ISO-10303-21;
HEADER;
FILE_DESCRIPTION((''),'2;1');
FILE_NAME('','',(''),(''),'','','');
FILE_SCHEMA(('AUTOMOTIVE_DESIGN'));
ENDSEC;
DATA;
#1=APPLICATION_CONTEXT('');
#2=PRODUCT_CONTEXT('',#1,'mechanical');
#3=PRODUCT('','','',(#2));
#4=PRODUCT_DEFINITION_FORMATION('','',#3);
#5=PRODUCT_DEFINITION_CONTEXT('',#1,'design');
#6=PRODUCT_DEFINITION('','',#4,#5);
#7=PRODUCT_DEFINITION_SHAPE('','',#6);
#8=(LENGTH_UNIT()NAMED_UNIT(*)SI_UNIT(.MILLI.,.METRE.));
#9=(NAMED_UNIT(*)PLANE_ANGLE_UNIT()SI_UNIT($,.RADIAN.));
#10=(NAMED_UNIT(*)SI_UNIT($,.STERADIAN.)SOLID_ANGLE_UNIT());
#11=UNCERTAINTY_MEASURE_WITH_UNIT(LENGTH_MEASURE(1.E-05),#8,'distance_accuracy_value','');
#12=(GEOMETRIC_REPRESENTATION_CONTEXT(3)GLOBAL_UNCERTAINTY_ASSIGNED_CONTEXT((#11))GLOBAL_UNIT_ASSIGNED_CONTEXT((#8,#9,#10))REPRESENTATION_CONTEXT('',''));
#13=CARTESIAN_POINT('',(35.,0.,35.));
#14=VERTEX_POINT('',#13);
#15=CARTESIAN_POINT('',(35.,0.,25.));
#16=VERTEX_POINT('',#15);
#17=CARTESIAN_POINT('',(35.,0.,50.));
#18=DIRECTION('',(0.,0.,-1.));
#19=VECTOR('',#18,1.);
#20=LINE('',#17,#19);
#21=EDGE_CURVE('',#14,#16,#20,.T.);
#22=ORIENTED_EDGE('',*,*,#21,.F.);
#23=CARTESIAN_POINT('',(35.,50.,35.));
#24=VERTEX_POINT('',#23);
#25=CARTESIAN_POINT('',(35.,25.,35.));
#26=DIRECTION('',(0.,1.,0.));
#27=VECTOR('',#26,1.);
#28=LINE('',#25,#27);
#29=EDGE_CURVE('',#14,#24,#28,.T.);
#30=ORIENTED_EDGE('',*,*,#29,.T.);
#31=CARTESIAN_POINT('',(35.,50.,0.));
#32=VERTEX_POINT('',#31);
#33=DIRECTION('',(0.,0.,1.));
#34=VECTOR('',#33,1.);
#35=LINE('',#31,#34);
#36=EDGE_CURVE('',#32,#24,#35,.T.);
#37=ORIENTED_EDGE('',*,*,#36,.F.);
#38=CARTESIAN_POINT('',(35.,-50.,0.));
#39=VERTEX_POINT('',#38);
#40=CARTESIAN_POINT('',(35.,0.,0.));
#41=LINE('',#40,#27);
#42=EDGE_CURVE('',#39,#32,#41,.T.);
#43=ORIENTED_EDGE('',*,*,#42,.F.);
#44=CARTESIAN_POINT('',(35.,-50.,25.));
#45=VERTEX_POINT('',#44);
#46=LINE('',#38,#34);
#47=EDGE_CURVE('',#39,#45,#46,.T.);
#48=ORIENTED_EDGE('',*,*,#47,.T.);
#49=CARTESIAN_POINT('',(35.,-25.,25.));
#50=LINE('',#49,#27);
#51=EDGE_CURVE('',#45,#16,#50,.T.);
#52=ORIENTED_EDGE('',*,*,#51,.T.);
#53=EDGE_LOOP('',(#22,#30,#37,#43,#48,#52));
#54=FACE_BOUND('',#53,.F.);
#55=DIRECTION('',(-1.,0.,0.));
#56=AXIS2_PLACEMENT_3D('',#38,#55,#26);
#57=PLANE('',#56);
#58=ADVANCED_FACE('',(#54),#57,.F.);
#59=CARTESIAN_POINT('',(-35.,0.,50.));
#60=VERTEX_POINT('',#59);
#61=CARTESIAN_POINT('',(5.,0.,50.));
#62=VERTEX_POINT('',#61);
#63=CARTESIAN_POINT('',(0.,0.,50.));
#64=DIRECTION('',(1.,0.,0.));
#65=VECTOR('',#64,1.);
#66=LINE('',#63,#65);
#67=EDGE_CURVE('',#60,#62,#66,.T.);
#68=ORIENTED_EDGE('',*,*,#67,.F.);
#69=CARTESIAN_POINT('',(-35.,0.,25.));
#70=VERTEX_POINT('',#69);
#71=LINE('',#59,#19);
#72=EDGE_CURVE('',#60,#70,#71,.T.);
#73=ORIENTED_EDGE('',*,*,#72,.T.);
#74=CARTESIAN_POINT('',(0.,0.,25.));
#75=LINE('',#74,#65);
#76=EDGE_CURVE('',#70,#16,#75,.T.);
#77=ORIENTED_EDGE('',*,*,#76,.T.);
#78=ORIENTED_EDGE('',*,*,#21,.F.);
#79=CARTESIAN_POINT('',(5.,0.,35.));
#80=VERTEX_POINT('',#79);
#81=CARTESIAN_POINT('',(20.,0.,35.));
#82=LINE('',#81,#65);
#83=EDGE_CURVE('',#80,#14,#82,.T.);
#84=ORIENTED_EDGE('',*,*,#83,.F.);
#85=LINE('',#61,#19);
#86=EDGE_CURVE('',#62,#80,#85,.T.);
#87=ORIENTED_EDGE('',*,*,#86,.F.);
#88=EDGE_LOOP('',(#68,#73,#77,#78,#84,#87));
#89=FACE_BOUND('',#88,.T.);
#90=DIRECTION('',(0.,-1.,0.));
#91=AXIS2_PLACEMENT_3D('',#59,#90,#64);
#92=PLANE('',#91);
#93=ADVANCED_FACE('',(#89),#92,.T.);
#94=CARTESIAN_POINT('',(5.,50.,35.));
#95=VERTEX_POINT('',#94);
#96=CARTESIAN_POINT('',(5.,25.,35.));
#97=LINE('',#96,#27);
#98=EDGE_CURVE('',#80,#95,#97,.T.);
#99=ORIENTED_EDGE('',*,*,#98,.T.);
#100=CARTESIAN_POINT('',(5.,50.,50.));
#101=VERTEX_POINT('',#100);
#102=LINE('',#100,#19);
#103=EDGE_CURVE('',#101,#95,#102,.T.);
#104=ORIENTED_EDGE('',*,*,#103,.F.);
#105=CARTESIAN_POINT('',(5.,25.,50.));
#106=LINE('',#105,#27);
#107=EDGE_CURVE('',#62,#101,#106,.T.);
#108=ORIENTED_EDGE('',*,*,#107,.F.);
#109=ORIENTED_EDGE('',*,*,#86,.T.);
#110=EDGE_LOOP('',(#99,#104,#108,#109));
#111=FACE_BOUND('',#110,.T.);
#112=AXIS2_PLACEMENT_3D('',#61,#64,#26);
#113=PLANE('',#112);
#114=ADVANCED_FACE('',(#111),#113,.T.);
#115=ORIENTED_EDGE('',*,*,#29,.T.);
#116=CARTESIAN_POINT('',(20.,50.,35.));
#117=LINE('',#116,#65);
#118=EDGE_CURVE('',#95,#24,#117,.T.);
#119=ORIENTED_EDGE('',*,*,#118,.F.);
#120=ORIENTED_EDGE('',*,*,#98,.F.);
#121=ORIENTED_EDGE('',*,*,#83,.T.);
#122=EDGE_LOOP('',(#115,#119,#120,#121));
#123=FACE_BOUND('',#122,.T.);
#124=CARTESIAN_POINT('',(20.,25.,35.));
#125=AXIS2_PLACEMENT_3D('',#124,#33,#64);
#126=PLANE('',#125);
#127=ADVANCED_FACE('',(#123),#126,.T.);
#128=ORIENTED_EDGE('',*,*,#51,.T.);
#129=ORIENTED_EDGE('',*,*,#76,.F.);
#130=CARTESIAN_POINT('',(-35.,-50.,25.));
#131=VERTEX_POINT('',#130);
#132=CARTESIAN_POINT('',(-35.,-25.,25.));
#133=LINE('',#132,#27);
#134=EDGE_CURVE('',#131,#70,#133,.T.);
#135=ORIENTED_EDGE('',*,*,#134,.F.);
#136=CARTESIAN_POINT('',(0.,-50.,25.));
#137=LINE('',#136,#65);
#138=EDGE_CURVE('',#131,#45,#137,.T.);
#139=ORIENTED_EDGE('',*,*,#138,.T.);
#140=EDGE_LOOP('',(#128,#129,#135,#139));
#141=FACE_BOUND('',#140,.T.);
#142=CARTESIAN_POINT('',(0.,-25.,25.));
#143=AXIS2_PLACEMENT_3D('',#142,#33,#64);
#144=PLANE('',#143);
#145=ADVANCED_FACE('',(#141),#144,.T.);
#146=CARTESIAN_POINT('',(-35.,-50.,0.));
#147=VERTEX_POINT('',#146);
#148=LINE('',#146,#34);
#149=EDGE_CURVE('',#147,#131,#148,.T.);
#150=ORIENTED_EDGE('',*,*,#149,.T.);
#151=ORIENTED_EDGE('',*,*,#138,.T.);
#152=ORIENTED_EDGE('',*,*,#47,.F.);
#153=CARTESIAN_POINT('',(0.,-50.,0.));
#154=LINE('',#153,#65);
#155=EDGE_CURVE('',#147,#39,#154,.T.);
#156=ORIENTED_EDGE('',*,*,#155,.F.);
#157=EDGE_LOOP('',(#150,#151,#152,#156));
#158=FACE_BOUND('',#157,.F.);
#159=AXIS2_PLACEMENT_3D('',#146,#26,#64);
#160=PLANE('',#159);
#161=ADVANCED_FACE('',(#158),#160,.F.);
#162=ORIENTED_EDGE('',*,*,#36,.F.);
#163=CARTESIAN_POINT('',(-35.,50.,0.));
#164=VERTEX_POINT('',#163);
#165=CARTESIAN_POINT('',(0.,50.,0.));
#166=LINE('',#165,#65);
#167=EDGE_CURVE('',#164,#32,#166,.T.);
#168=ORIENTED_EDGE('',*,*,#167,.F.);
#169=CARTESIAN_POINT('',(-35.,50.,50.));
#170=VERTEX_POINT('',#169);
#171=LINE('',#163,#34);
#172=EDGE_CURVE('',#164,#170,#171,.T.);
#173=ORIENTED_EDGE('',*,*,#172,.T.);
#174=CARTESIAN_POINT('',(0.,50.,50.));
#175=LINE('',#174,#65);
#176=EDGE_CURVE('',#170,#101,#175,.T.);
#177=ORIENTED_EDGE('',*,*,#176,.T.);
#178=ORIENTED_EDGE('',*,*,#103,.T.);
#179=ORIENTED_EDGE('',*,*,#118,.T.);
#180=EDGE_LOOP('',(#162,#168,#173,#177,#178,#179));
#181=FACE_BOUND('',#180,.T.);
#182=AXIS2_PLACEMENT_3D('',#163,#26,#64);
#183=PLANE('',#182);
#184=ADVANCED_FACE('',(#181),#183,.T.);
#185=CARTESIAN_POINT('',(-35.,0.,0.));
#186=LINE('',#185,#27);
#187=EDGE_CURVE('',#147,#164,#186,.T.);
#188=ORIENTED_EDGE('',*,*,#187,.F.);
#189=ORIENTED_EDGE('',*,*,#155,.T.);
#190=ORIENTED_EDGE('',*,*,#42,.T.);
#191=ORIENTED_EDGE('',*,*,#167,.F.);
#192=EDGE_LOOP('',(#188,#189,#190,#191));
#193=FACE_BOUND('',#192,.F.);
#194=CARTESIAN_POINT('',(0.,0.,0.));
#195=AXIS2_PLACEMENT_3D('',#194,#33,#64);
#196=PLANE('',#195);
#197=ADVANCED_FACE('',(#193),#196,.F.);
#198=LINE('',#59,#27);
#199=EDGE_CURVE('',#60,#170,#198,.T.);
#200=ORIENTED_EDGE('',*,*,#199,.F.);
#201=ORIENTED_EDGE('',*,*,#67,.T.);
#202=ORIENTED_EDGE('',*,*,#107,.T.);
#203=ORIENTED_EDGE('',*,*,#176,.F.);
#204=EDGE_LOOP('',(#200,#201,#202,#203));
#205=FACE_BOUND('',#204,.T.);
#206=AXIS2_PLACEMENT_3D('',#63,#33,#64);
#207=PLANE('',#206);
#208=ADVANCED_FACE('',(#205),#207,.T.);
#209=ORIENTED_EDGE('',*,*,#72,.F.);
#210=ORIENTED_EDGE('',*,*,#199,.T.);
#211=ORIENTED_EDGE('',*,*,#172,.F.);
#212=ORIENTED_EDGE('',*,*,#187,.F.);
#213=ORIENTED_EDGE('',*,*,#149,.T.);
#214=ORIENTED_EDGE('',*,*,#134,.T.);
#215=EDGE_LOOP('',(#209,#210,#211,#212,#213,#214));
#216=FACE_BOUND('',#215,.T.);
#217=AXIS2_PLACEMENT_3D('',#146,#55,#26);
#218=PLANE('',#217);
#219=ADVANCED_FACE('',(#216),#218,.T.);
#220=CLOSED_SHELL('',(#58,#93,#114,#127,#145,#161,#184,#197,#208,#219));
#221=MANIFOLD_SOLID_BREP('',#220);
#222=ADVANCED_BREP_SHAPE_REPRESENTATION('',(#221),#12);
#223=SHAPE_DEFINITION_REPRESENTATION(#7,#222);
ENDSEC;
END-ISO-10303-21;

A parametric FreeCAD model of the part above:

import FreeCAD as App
import Part
import Sketcher

V = App.Vector

doc = App.newDocument("Part")
body = doc.addObject("PartDesign::Body", "Body")

# Sketch on XY plane
sketch1 = body.newObject("Sketcher::SketchObject", "Sketch")
sketch1.AttachmentSupport = (doc.getObject("XY_Plane"), [""])
sketch1.MapMode = "FlatFace"
sketch1.addGeometry(Part.LineSegment(V(-35, 50, 0), V(-35, -50, 0)), False)
sketch1.addGeometry(Part.LineSegment(V(-35, -50, 0), V(35, -50, 0)), False)
sketch1.addGeometry(Part.LineSegment(V(35, -50, 0), V(35, 50, 0)), False)
sketch1.addGeometry(Part.LineSegment(V(35, 50, 0), V(-35, 50, 0)), False)
sketch1.addConstraint(Sketcher.Constraint("Coincident", 0, 2, 1, 1))
sketch1.addConstraint(Sketcher.Constraint("Coincident", 1, 2, 2, 1))
sketch1.addConstraint(Sketcher.Constraint("Coincident", 2, 2, 3, 1))
sketch1.addConstraint(Sketcher.Constraint("Coincident", 3, 2, 0, 1))
sketch1.addConstraint(Sketcher.Constraint("Vertical", 0))
sketch1.addConstraint(Sketcher.Constraint("Horizontal", 1))
sketch1.addConstraint(Sketcher.Constraint("Vertical", 2))
sketch1.addConstraint(Sketcher.Constraint("Horizontal", 3))
sketch1.addConstraint(Sketcher.Constraint("Symmetric", 0, 2, 2, 2, -1, 1))
sketch1.addConstraint(Sketcher.Constraint("DistanceX", 1, 1, 1, 2, 70.0))
sketch1.addConstraint(Sketcher.Constraint("DistanceY", 0, 2, 0, 1, 100.0))
pad1 = body.newObject("PartDesign::Pad", "Pad")
pad1.Profile = sketch1
pad1.Length = 50

# Sketch on XY plane
sketch2 = body.newObject("Sketcher::SketchObject", "Sketch001")
sketch2.AttachmentSupport = (doc.getObject("XY_Plane"), [""])
sketch2.MapMode = "FlatFace"
sketch2.AttachmentOffset = App.Placement(V(0, 0, 50), App.Rotation())
sketch2.addGeometry(Part.LineSegment(V(-35, 0, 0), V(-35, -50, 0)), False)
sketch2.addGeometry(Part.LineSegment(V(-35, -50, 0), V(35, -50, 0)), False)
sketch2.addGeometry(Part.LineSegment(V(35, -50, 0), V(35, 0, 0)), False)
sketch2.addGeometry(Part.LineSegment(V(35, 0, 0), V(-35, 0, 0)), False)
sketch2.addConstraint(Sketcher.Constraint("Coincident", 0, 2, 1, 1))
sketch2.addConstraint(Sketcher.Constraint("Coincident", 1, 2, 2, 1))
sketch2.addConstraint(Sketcher.Constraint("Coincident", 2, 2, 3, 1))
sketch2.addConstraint(Sketcher.Constraint("Coincident", 3, 2, 0, 1))
sketch2.addConstraint(Sketcher.Constraint("Vertical", 0))
sketch2.addConstraint(Sketcher.Constraint("Horizontal", 1))
sketch2.addConstraint(Sketcher.Constraint("Vertical", 2))
sketch2.addConstraint(Sketcher.Constraint("Horizontal", 3))
sketch2.addConstraint(Sketcher.Constraint("Symmetric", 2, 2, 3, 2, -1, 1))
sketch2.addConstraint(Sketcher.Constraint("DistanceX", 1, 1, 1, 2, 70.0))
sketch2.addConstraint(Sketcher.Constraint("DistanceY", 0, 2, 0, 1, 50.0))
pocket1 = body.newObject("PartDesign::Pocket", "Pocket")
pocket1.Profile = sketch2
pocket1.Length = 25

# Sketch on XY plane
sketch3 = body.newObject("Sketcher::SketchObject", "Sketch002")
sketch3.AttachmentSupport = (doc.getObject("XY_Plane"), [""])
sketch3.MapMode = "FlatFace"
sketch3.AttachmentOffset = App.Placement(V(0, 0, 50), App.Rotation())
sketch3.addGeometry(Part.LineSegment(V(5, 50, 0), V(5, 0, 0)), False)
sketch3.addGeometry(Part.LineSegment(V(5, 0, 0), V(35, 0, 0)), False)
sketch3.addGeometry(Part.LineSegment(V(35, 0, 0), V(35, 50, 0)), False)
sketch3.addGeometry(Part.LineSegment(V(35, 50, 0), V(5, 50, 0)), False)
sketch3.addConstraint(Sketcher.Constraint("Coincident", 0, 2, 1, 1))
sketch3.addConstraint(Sketcher.Constraint("Coincident", 1, 2, 2, 1))
sketch3.addConstraint(Sketcher.Constraint("Coincident", 2, 2, 3, 1))
sketch3.addConstraint(Sketcher.Constraint("Coincident", 3, 2, 0, 1))
sketch3.addConstraint(Sketcher.Constraint("Vertical", 0))
sketch3.addConstraint(Sketcher.Constraint("Horizontal", 1))
sketch3.addConstraint(Sketcher.Constraint("Vertical", 2))
sketch3.addConstraint(Sketcher.Constraint("Horizontal", 3))
sketch3.addConstraint(Sketcher.Constraint("PointOnObject", 0, 2, -1))
sketch3.addConstraint(Sketcher.Constraint("DistanceX", 1, 1, 1, 2, 30.0))
sketch3.addConstraint(Sketcher.Constraint("DistanceY", 0, 2, 0, 1, 50.0))
sketch3.addConstraint(Sketcher.Constraint("DistanceX", -1, 1, 0, 2, 5.0))
pocket2 = body.newObject("PartDesign::Pocket", "Pocket001")
pocket2.Profile = sketch3
pocket2.Length = 15

doc.recompute()
